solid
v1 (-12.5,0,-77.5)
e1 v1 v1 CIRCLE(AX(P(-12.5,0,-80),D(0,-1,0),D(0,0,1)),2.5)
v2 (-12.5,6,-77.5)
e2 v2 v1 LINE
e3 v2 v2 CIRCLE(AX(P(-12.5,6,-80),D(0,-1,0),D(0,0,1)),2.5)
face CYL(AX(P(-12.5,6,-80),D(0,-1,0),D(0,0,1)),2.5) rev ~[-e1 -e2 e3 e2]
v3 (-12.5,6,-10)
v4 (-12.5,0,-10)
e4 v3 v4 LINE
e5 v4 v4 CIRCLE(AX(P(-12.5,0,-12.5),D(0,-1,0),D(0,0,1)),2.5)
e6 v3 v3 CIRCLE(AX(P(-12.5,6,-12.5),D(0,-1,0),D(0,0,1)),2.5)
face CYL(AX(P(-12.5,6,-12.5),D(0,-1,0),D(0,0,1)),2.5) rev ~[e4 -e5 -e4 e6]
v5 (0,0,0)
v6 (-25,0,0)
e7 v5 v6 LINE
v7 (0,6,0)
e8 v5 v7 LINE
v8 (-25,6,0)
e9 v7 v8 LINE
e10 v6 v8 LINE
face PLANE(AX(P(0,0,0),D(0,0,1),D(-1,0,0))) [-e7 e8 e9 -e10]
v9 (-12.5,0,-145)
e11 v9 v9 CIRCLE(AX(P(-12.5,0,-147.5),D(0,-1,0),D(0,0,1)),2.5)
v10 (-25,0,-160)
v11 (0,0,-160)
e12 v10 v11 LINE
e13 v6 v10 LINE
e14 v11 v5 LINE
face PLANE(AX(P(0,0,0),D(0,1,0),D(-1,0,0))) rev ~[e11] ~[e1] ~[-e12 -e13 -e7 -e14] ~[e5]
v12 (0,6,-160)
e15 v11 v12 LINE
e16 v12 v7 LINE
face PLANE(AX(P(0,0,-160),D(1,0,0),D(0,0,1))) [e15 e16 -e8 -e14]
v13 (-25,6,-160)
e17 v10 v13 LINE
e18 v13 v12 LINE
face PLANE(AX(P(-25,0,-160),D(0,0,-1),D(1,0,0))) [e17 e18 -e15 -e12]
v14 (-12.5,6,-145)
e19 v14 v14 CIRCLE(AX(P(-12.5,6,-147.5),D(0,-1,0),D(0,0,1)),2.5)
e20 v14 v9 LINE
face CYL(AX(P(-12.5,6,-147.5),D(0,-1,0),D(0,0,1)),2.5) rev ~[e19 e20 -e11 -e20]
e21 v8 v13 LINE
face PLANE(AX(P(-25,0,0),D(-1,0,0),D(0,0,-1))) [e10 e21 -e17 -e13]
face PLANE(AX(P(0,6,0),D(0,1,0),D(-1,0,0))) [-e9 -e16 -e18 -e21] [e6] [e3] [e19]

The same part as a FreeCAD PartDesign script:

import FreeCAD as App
import Part
import Sketcher


def add_polygon(sketch, points):
    """Adds a closed chain of lines whose ends are joined by coincident constraints."""
    first, n = sketch.GeometryCount, len(points)
    for a, b in zip(points, points[1:] + points[:1]):
        sketch.addGeometry(Part.LineSegment(App.Vector(*a, 0), App.Vector(*b, 0)), False)
    for i in range(n):
        sketch.addConstraint(Sketcher.Constraint("Coincident", first + i, 2, first + (i + 1) % n, 1))

doc = App.newDocument("Part")
body = doc.addObject("PartDesign::Body", "Body")

sketch1 = body.newObject("Sketcher::SketchObject", "Sketch")
sketch1.AttachmentSupport = (doc.getObject("XZ_Plane"), [""])
sketch1.MapMode = "FlatFace"
add_polygon(sketch1, [(-25, 0), (0, 0), (0, -160), (-25, -160)])
sketch1.addConstraint([
    Sketcher.Constraint("Horizontal", 0),
    Sketcher.Constraint("Vertical", 1),
    Sketcher.Constraint("Horizontal", 2),
    Sketcher.Constraint("Vertical", 3),
    Sketcher.Constraint("Coincident", 0, 2, -1, 1),
    Sketcher.Constraint("DistanceX", 0, 1, 0, 2, 25.0),
    Sketcher.Constraint("DistanceY", 1, 2, 1, 1, 160.0),
])
pad1 = body.newObject("PartDesign::Pad", "Pad")
pad1.Profile = sketch1
pad1.Length = 6
pad1.Reversed = True

sketch2 = body.newObject("Sketcher::SketchObject", "Sketch001")
sketch2.AttachmentSupport = (doc.getObject("XZ_Plane"), [""])
sketch2.MapMode = "FlatFace"
sketch2.AttachmentOffset = App.Placement(App.Vector(0, 0, -6), App.Rotation())
sketch2.addGeometry([
    Part.Circle(App.Vector(-12.5, -12.5, 0), App.Vector(0, 0, 1), 2.5),
    Part.Circle(App.Vector(-12.5, -147.5, 0), App.Vector(0, 0, 1), 2.5),
], False)
sketch2.addConstraint([
    Sketcher.Constraint("Equal", 0, 1),
    Sketcher.Constraint("Vertical", 0, 3, 1, 3),
    Sketcher.Constraint("Diameter", 0, 5.0),
    Sketcher.Constraint("DistanceY", 1, 3, 0, 3, 135.0),
    Sketcher.Constraint("DistanceX", 0, 3, -1, 1, 12.5),
    Sketcher.Constraint("DistanceY", 0, 3, -1, 1, 12.5),
])
doc.recompute()
hole = body.newObject("PartDesign::Hole", "Hole")
hole.Profile = sketch2
hole.ThreadType = "None"
hole.Diameter = 5
hole.DepthType = "ThroughAll"
hole.Reversed = True

sketch3 = body.newObject("Sketcher::SketchObject", "Sketch002")
sketch3.AttachmentSupport = (doc.getObject("XZ_Plane"), [""])
sketch3.MapMode = "FlatFace"
sketch3.AttachmentOffset = App.Placement(App.Vector(0, 0, -6), App.Rotation())
sketch3.addGeometry(Part.Circle(App.Vector(-12.5, -80, 0), App.Vector(0, 0, 1), 2.5), False)
sketch3.addConstraint([
    Sketcher.Constraint("Diameter", 0, 5.0),
    Sketcher.Constraint("DistanceY", 0, 3, -1, 1, 80.0),
    Sketcher.Constraint("DistanceX", 0, 3, -1, 1, 12.5),
])
doc.recompute()
hole2 = body.newObject("PartDesign::Hole", "Hole001")
hole2.Profile = sketch3
hole2.ThreadType = "None"
hole2.Diameter = 5
hole2.DepthType = "Dimension"
hole2.Depth = 6
hole2.DrillPoint = "Flat"
hole2.Reversed = True

doc.recompute()
